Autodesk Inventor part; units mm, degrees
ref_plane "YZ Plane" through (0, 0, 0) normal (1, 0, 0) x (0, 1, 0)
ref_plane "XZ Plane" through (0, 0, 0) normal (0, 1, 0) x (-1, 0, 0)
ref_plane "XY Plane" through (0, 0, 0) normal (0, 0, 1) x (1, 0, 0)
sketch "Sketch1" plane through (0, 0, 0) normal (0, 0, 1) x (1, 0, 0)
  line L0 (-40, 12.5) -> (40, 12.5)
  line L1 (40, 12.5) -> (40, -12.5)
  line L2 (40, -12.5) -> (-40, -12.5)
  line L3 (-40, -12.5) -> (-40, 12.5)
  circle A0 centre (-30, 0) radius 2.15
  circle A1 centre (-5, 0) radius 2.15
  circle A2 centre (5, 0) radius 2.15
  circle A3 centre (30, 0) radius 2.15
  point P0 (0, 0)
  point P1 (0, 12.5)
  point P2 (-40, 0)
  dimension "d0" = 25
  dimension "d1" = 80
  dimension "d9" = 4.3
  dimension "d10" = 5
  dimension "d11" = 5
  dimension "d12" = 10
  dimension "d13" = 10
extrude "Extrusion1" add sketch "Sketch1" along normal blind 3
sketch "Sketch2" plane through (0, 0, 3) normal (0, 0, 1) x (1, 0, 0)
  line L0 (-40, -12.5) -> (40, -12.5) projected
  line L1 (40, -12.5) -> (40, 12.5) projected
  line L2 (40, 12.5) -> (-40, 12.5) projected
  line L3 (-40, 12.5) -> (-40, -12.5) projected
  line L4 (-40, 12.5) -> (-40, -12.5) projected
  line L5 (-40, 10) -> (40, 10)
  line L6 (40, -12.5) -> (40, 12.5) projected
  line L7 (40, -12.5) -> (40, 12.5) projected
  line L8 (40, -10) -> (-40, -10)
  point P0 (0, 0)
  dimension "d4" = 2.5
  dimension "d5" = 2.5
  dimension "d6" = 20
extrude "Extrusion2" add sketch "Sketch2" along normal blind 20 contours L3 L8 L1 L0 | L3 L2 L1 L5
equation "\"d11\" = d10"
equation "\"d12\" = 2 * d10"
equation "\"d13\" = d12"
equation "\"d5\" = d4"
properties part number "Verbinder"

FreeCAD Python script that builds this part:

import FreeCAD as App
import Part
import Sketcher

doc = App.newDocument("Part")
body = doc.addObject("PartDesign::Body", "Body")

# Sketch on XY plane
sketch1 = doc.addObject("Sketcher::SketchObject", "Sketch")
body.addObject(sketch1)
sketch1.AttachmentSupport = (doc.XY_Plane, [""])
sketch1.MapMode = "FlatFace"
sketch1.addGeometry(Part.LineSegment(App.Vector(40, 12.5, 0), App.Vector(-40, 12.5, 0)), False)
sketch1.addGeometry(Part.LineSegment(App.Vector(-40, 12.5, 0), App.Vector(-40, -12.5, 0)), False)
sketch1.addGeometry(Part.LineSegment(App.Vector(-40, -12.5, 0), App.Vector(40, -12.5, 0)), False)
sketch1.addGeometry(Part.LineSegment(App.Vector(40, -12.5, 0), App.Vector(40, 12.5, 0)), False)
sketch1.addGeometry(Part.Circle(App.Vector(-30, 0, 0), App.Vector(0, 0, 1), 2.1), False)
sketch1.addGeometry(Part.Circle(App.Vector(-5, 0, 0), App.Vector(0, 0, 1), 2.1), False)
sketch1.addGeometry(Part.Circle(App.Vector(5, 0, 0), App.Vector(0, 0, 1), 2.1), False)
sketch1.addGeometry(Part.Circle(App.Vector(30, 0, 0), App.Vector(0, 0, 1), 2.1), False)
sketch1.addConstraint(Sketcher.Constraint("Coincident", 0, 2, 1, 1))
sketch1.addConstraint(Sketcher.Constraint("Coincident", 1, 2, 2, 1))
sketch1.addConstraint(Sketcher.Constraint("Coincident", 2, 2, 3, 1))
sketch1.addConstraint(Sketcher.Constraint("Coincident", 3, 2, 0, 1))
sketch1.addConstraint(Sketcher.Constraint("Horizontal", 0))
sketch1.addConstraint(Sketcher.Constraint("Vertical", 1))
sketch1.addConstraint(Sketcher.Constraint("Horizontal", 2))
sketch1.addConstraint(Sketcher.Constraint("Vertical", 3))
sketch1.addConstraint(Sketcher.Constraint("Equal", 4, 5))
sketch1.addConstraint(Sketcher.Constraint("Equal", 5, 6))
sketch1.addConstraint(Sketcher.Constraint("Equal", 6, 7))
sketch1.addConstraint(Sketcher.Constraint("Symmetric", 5, 3, 6, 3, -1, 1))
sketch1.addConstraint(Sketcher.Constraint("Symmetric", 4, 3, 7, 3, -1, 1))
sketch1.addConstraint(Sketcher.Constraint("Symmetric", 0, 2, 2, 2, -1, 1))
sketch1.addConstraint(Sketcher.Constraint("PointOnObject", 4, 3, -1))
sketch1.addConstraint(Sketcher.Constraint("PointOnObject", 5, 3, -1))
sketch1.addConstraint(Sketcher.Constraint("Diameter", 4, 4.3))
sketch1.addConstraint(Sketcher.Constraint("DistanceX", 0, 2, 0, 1, 80.0))
sketch1.addConstraint(Sketcher.Constraint("DistanceY", 1, 2, 1, 1, 25.0))
sketch1.addConstraint(Sketcher.Constraint("DistanceX", 5, 3, -1, 1, 5.0))
sketch1.addConstraint(Sketcher.Constraint("DistanceX", 4, 3, 5, 3, 25.0))
pad1 = doc.addObject("PartDesign::Pad", "Pad")
body.addObject(pad1)
pad1.Profile = sketch1
pad1.Length = 3

# Sketch on XY plane
sketch2 = doc.addObject("Sketcher::SketchObject", "Sketch001")
body.addObject(sketch2)
sketch2.AttachmentSupport = (doc.XY_Plane, [""])
sketch2.MapMode = "FlatFace"
sketch2.AttachmentOffset = App.Placement(App.Vector(0, 0, 3), App.Rotation())
sketch2.addGeometry(Part.LineSegment(App.Vector(-40, -10, 0), App.Vector(-40, -12.5, 0)), False)
sketch2.addGeometry(Part.LineSegment(App.Vector(-40, -12.5, 0), App.Vector(40, -12.5, 0)), False)
sketch2.addGeometry(Part.LineSegment(App.Vector(40, -12.5, 0), App.Vector(40, -10, 0)), False)
sketch2.addGeometry(Part.LineSegment(App.Vector(40, -10, 0), App.Vector(-40, -10, 0)), False)
sketch2.addGeometry(Part.LineSegment(App.Vector(-40, 12.5, 0), App.Vector(-40, 10, 0)), False)
sketch2.addGeometry(Part.LineSegment(App.Vector(-40, 10, 0), App.Vector(40, 10, 0)), False)
sketch2.addGeometry(Part.LineSegment(App.Vector(40, 10, 0), App.Vector(40, 12.5, 0)), False)
sketch2.addGeometry(Part.LineSegment(App.Vector(40, 12.5, 0), App.Vector(-40, 12.5, 0)), False)
sketch2.addConstraint(Sketcher.Constraint("Coincident", 0, 2, 1, 1))
sketch2.addConstraint(Sketcher.Constraint("Coincident", 1, 2, 2, 1))
sketch2.addConstraint(Sketcher.Constraint("Coincident", 2, 2, 3, 1))
sketch2.addConstraint(Sketcher.Constraint("Coincident", 3, 2, 0, 1))
sketch2.addConstraint(Sketcher.Constraint("Coincident", 4, 2, 5, 1))
sketch2.addConstraint(Sketcher.Constraint("Coincident", 5, 2, 6, 1))
sketch2.addConstraint(Sketcher.Constraint("Coincident", 6, 2, 7, 1))
sketch2.addConstraint(Sketcher.Constraint("Coincident", 7, 2, 4, 1))
sketch2.addConstraint(Sketcher.Constraint("Vertical", 0))
sketch2.addConstraint(Sketcher.Constraint("Horizontal", 1))
sketch2.addConstraint(Sketcher.Constraint("Vertical", 2))
sketch2.addConstraint(Sketcher.Constraint("Horizontal", 3))
sketch2.addConstraint(Sketcher.Constraint("Vertical", 4))
sketch2.addConstraint(Sketcher.Constraint("Horizontal", 5))
sketch2.addConstraint(Sketcher.Constraint("Vertical", 6))
sketch2.addConstraint(Sketcher.Constraint("Horizontal", 7))
sketch2.addConstraint(Sketcher.Constraint("Symmetric", 2, 2, 4, 2, -1, 1))
sketch2.addConstraint(Sketcher.Constraint("Symmetric", 0, 2, 6, 2, -1, 1))
sketch2.addConstraint(Sketcher.Constraint("Vertical", 3, 2, 4, 2))
sketch2.addConstraint(Sketcher.Constraint("DistanceY", 0, 2, 0, 1, 2.5))
sketch2.addConstraint(Sketcher.Constraint("DistanceY", 3, 2, 4, 2, 20.0))
sketch2.addConstraint(Sketcher.Constraint("DistanceX", 1, 1, 1, 2, 80.0))
pad2 = doc.addObject("PartDesign::Pad", "Pad001")
body.addObject(pad2)
pad2.Profile = sketch2
pad2.Length = 20

doc.recompute()
